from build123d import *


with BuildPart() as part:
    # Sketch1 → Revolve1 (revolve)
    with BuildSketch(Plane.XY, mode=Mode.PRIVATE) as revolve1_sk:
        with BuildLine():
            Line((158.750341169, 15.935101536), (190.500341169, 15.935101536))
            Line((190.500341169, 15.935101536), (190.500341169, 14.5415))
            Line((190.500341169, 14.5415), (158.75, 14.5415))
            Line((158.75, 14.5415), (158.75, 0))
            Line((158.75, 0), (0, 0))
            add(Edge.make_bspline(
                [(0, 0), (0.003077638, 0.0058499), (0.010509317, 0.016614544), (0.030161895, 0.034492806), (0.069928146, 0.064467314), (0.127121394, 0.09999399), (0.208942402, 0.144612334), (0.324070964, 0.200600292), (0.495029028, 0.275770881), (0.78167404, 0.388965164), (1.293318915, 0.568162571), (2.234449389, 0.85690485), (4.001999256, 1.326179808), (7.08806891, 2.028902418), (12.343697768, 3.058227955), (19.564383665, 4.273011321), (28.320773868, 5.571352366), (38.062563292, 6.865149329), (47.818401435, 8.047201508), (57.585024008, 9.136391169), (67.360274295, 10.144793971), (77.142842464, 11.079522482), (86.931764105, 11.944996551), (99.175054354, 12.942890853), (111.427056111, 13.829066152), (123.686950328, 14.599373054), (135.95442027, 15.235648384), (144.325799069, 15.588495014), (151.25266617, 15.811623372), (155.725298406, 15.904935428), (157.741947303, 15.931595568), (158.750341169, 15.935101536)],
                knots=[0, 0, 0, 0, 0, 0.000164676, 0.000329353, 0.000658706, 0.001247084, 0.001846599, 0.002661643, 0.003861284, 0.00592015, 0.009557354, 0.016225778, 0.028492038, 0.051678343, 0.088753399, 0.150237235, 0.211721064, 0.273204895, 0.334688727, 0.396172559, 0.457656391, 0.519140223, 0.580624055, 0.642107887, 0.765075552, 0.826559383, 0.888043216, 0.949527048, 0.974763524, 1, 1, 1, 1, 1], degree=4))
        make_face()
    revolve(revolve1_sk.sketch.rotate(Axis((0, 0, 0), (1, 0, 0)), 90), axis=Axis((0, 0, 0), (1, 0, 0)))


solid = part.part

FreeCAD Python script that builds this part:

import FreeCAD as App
import Part
import Sketcher

V = App.Vector
Q = App.Units.Quantity

doc = App.newDocument("Part")
params = doc.addObject("Spreadsheet::Sheet", "Params")
for row, (alias, value) in enumerate([
    ("sketch1_width", "1.25 in"),
    ("sketch1_width2", "6.25 in"),
    ("revolution_angle", "360 deg"),
], start=1):
    params.set(f"A{row}", alias)
    params.set(f"B{row}", "=" + value)
    params.setAlias(f"B{row}", alias)

body = doc.addObject("PartDesign::Body", "Body")

sketch1 = body.newObject("Sketcher::SketchObject", "Sketch")
sketch1.AttachmentSupport = (doc.getObject("XY_Plane"), [""])
sketch1.MapMode = "FlatFace"
sketch1.addGeometry([
    Part.LineSegment(V(190.500341, 15.935102, 0), V(158.750341, 15.935102, 0)),
    Part.BSplineCurve([V(0, 0, 0), V(0.003078, 0.00585, 0), V(0.010509, 0.016615, 0), V(0.030162, 0.034493, 0), V(0.069928, 0.064467, 0), V(0.127121, 0.099994, 0), V(0.208942, 0.144612, 0), V(0.324071, 0.2006, 0), V(0.495029, 0.275771, 0), V(0.781674, 0.388965, 0), V(1.293319, 0.568163, 0), V(2.234449, 0.856905, 0), V(4.001999, 1.32618, 0), V(7.088069, 2.028902, 0), V(12.343698, 3.058228, 0), V(19.564384, 4.273011, 0), V(28.320774, 5.571352, 0), V(38.062563, 6.865149, 0), V(47.818401, 8.047202, 0), V(57.585024, 9.136391, 0), V(67.360274, 10.144794, 0), V(77.142842, 11.079522, 0), V(86.931764, 11.944997, 0), V(99.175054, 12.942891, 0), V(111.427056, 13.829066, 0), V(123.68695, 14.599373, 0), V(135.95442, 15.235648, 0), V(144.325799, 15.588495, 0), V(151.252666, 15.811623, 0), V(155.725298, 15.904935, 0), V(157.741947, 15.931596, 0), V(158.750341, 15.935102, 0)], [5, 1, 1, 1, 1, 1, 1, 1, 1, 1, 1, 1, 1, 1, 1, 1, 1, 1, 1, 1, 1, 1, 1, 1, 1, 1, 1, 1, 5], [0, 0.000164676, 0.000329353, 0.000658706, 0.001247084, 0.001846599, 0.002661643, 0.003861284, 0.00592015, 0.009557354, 0.016225778, 0.028492038, 0.051678343, 0.088753399, 0.150237235, 0.211721064, 0.273204895, 0.334688727, 0.396172559, 0.457656391, 0.519140223, 0.580624055, 0.642107887, 0.765075552, 0.826559383, 0.888043216, 0.949527048, 0.974763524, 1], False, 4, [1, 1, 1, 1, 1, 1, 1, 1, 1, 1, 1, 1, 1, 1, 1, 1, 1, 1, 1, 1, 1, 1, 1, 1, 1, 1, 1, 1, 1, 1, 1, 1], False),
    Part.LineSegment(V(0, 0, 0), V(158.75, 0, 0)),
    Part.LineSegment(V(158.75, 0, 0), V(158.75, 14.5415, 0)),
    Part.LineSegment(V(158.75, 14.5415, 0), V(190.500341, 14.5415, 0)),
    Part.LineSegment(V(190.500341, 14.5415, 0), V(190.500341, 15.935102, 0)),
], False)
sketch1.addConstraint([
    Sketcher.Constraint("Block", 1),
    Sketcher.Constraint("Coincident", 0, 2, 1, 2),
    Sketcher.Constraint("Coincident", 1, 1, 2, 1),
    Sketcher.Constraint("Coincident", 2, 2, 3, 1),
    Sketcher.Constraint("Coincident", 3, 2, 4, 1),
    Sketcher.Constraint("Coincident", 4, 2, 5, 1),
    Sketcher.Constraint("Coincident", 5, 2, 0, 1),
    Sketcher.Constraint("Horizontal", 0),
    Sketcher.Constraint("Horizontal", 2),
    Sketcher.Constraint("Vertical", 3),
    Sketcher.Constraint("Horizontal", 4),
    Sketcher.Constraint("Vertical", 5),
    Sketcher.Constraint("DistanceX", 0, 2, 0, 1, Q("1.25 in")),
    Sketcher.Constraint("DistanceX", 2, 1, 2, 2, Q("6.25 in")),
    Sketcher.Constraint("DistanceY", 3, 1, 3, 2, Q("0.5725 in")),
])
sketch1.setExpression("Constraints[12]", "Params.sketch1_width")
sketch1.setExpression("Constraints[13]", "Params.sketch1_width2")
revolution = body.newObject("PartDesign::Revolution", "Revolution")
revolution.Profile = sketch1
revolution.ReferenceAxis = (sketch1, ["H_Axis"])
revolution.setExpression("Angle", "Params.revolution_angle")

doc.recompute()
